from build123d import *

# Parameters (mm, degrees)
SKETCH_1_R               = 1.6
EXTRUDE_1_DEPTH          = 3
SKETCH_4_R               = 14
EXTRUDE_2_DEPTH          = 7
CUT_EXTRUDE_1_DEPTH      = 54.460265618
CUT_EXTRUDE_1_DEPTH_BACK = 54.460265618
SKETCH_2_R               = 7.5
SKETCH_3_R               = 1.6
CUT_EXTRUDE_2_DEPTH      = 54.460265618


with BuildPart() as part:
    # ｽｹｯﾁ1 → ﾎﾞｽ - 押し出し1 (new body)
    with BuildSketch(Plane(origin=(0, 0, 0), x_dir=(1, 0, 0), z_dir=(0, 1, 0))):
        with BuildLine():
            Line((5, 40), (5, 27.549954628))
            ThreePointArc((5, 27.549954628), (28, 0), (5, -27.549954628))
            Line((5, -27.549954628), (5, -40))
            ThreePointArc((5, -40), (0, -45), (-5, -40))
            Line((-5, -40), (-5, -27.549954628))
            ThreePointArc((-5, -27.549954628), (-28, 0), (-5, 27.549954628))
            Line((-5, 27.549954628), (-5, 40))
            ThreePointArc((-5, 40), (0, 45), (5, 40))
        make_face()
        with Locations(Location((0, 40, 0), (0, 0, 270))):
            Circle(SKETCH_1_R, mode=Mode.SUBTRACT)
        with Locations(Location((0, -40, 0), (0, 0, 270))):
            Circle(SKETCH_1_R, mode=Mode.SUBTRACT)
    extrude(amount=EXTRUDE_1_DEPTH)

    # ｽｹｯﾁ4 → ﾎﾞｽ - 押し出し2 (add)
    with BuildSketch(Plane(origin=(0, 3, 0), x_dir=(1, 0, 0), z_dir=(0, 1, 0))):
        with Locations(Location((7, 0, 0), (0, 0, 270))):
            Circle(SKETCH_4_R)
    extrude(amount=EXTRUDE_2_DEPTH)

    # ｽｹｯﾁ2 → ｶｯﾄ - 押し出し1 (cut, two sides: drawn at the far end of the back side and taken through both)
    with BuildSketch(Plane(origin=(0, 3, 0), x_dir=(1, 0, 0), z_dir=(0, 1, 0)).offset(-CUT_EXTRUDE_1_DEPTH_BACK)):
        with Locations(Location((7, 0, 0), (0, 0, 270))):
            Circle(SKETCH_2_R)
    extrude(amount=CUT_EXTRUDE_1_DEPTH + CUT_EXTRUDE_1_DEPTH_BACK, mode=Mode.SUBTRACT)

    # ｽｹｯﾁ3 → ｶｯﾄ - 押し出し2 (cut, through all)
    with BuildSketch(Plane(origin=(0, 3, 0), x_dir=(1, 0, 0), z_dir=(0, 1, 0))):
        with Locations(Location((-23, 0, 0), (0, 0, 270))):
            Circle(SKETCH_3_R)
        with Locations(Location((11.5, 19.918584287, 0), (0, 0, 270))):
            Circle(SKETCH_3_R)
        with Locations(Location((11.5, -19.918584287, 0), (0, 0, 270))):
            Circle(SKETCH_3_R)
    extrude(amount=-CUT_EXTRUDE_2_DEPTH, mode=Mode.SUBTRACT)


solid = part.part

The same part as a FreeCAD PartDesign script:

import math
import FreeCAD as App
import Part
import Sketcher
Q = App.Units.Quantity

doc = App.newDocument("Part")
body = doc.addObject("PartDesign::Body", "Body")

sketch1 = doc.addObject("Sketcher::SketchObject", "Sketch")
body.addObject(sketch1)
sketch1.AttachmentSupport = (doc.XZ_Plane, [""])
sketch1.MapMode = "FlatFace"
sketch1.addGeometry([
    Part.LineSegment(App.Vector(5, -27.549955, 0), App.Vector(5, -40, 0)),
    Part.ArcOfCircle(Part.Circle(App.Vector(0, -40, 0), App.Vector(0, 0, 1), 5), math.radians(180), math.radians(360)),
    Part.LineSegment(App.Vector(-5, -40, 0), App.Vector(-5, -27.549955, 0)),
    Part.ArcOfCircle(Part.Circle(App.Vector(0, 0, 0), App.Vector(0, 0, 1), 28), math.radians(100.286561), math.radians(259.713439)),
    Part.LineSegment(App.Vector(-5, 27.549955, 0), App.Vector(-5, 40, 0)),
    Part.ArcOfCircle(Part.Circle(App.Vector(0, 40, 0), App.Vector(0, 0, 1), 5), math.radians(0), math.radians(180)),
    Part.LineSegment(App.Vector(5, 40, 0), App.Vector(5, 27.549955, 0)),
    Part.ArcOfCircle(Part.Circle(App.Vector(0, 0, 0), App.Vector(0, 0, 1), 28), math.radians(-79.713439), math.radians(79.713439)),
    Part.Circle(App.Vector(0, 40, 0), App.Vector(0, 0, 1), 1.6),
    Part.Circle(App.Vector(0, -40, 0), App.Vector(0, 0, 1), 1.6),
], False)
sketch1.addConstraint([
    Sketcher.Constraint("Tangent", 0, 2, 1, 2),
    Sketcher.Constraint("Tangent", 1, 1, 2, 1),
    Sketcher.Constraint("Coincident", 2, 2, 3, 2),
    Sketcher.Constraint("Coincident", 3, 1, 4, 1),
    Sketcher.Constraint("Tangent", 4, 2, 5, 2),
    Sketcher.Constraint("Tangent", 5, 1, 6, 1),
    Sketcher.Constraint("Coincident", 6, 2, 7, 2),
    Sketcher.Constraint("Coincident", 7, 1, 0, 1),
    Sketcher.Constraint("Vertical", 0),
    Sketcher.Constraint("Vertical", 2),
    Sketcher.Constraint("Vertical", 4),
    Sketcher.Constraint("Vertical", 6),
    Sketcher.Constraint("Coincident", 3, 3, -1, 1),
    Sketcher.Constraint("Coincident", 7, 3, -1, 1),
    Sketcher.Constraint("Coincident", 8, 3, 5, 3),
    Sketcher.Constraint("Coincident", 9, 3, 1, 3),
    Sketcher.Constraint("Equal", 1, 5),
    Sketcher.Constraint("Equal", 3, 7),
    Sketcher.Constraint("Equal", 8, 9),
    Sketcher.Constraint("Symmetric", 1, 3, 5, 3, -1, 1),
    Sketcher.Constraint("PointOnObject", 1, 3, -2),
    Sketcher.Constraint("Radius", 1, Q("5 mm")),
    Sketcher.Constraint("Radius", 3, Q("28 mm")),
    Sketcher.Constraint("Diameter", 8, Q("3.2 mm")),
    Sketcher.Constraint("DistanceY", 1, 3, -1, 1, Q("40 mm")),
])
pad1 = doc.addObject("PartDesign::Pad", "Pad")
body.addObject(pad1)
pad1.Profile = sketch1
pad1.Length = 3
pad1.Reversed = True

sketch2 = doc.addObject("Sketcher::SketchObject", "Sketch001")
body.addObject(sketch2)
sketch2.AttachmentSupport = (doc.XZ_Plane, [""])
sketch2.MapMode = "FlatFace"
sketch2.AttachmentOffset = App.Placement(App.Vector(0, 0, -3), App.Rotation())
sketch2.addGeometry(Part.Circle(App.Vector(7, 0, 0), App.Vector(0, 0, 1), 14), False)
sketch2.addConstraint([
    Sketcher.Constraint("PointOnObject", 0, 3, -1),
    Sketcher.Constraint("Diameter", 0, Q("28 mm")),
    Sketcher.Constraint("DistanceX", -1, 1, 0, 3, Q("7 mm")),
])
pad2 = doc.addObject("PartDesign::Pad", "Pad001")
body.addObject(pad2)
pad2.Profile = sketch2
pad2.Length = 7
pad2.Reversed = True

sketch3 = doc.addObject("Sketcher::SketchObject", "Sketch002")
body.addObject(sketch3)
sketch3.AttachmentSupport = (doc.XZ_Plane, [""])
sketch3.MapMode = "FlatFace"
sketch3.AttachmentOffset = App.Placement(App.Vector(0, 0, -3), App.Rotation())
sketch3.addGeometry(Part.Circle(App.Vector(7, 0, 0), App.Vector(0, 0, 1), 7.5), False)
sketch3.addConstraint([
    Sketcher.Constraint("PointOnObject", 0, 3, -1),
    Sketcher.Constraint("Diameter", 0, Q("15 mm")),
    Sketcher.Constraint("DistanceX", -1, 1, 0, 3, Q("7 mm")),
])
pocket1 = doc.addObject("PartDesign::Pocket", "Pocket")
body.addObject(pocket1)
pocket1.Profile = sketch3
pocket1.Type = "ThroughAll"
pocket1.Midplane = True

sketch4 = doc.addObject("Sketcher::SketchObject", "Sketch003")
body.addObject(sketch4)
sketch4.AttachmentSupport = (doc.XZ_Plane, [""])
sketch4.MapMode = "FlatFace"
sketch4.AttachmentOffset = App.Placement(App.Vector(0, 0, -3), App.Rotation())
sketch4.addGeometry([
    Part.Circle(App.Vector(-23, 0, 0), App.Vector(0, 0, 1), 1.6),
    Part.Circle(App.Vector(11.5, -19.918584, 0), App.Vector(0, 0, 1), 1.6),
    Part.Circle(App.Vector(11.5, 19.918584, 0), App.Vector(0, 0, 1), 1.6),
], False)
sketch4.addConstraint([
    Sketcher.Constraint("Equal", 0, 1),
    Sketcher.Constraint("Equal", 1, 2),
    Sketcher.Constraint("Symmetric", 1, 3, 2, 3, -1),
    Sketcher.Constraint("PointOnObject", 0, 3, -1),
    Sketcher.Constraint("Diameter", 0, Q("3.2 mm")),
    Sketcher.Constraint("DistanceX", 0, 3, -1, 1, Q("23 mm")),
    Sketcher.Constraint("DistanceX", -1, 1, 1, 3, Q("11.5 mm")),
    Sketcher.Constraint("DistanceY", 1, 3, 2, 3, Q("39.837169 mm")),
])
pocket2 = doc.addObject("PartDesign::Pocket", "Pocket001")
body.addObject(pocket2)
pocket2.Profile = sketch4
pocket2.Type = "ThroughAll"
pocket2.Reversed = True

doc.recompute()
